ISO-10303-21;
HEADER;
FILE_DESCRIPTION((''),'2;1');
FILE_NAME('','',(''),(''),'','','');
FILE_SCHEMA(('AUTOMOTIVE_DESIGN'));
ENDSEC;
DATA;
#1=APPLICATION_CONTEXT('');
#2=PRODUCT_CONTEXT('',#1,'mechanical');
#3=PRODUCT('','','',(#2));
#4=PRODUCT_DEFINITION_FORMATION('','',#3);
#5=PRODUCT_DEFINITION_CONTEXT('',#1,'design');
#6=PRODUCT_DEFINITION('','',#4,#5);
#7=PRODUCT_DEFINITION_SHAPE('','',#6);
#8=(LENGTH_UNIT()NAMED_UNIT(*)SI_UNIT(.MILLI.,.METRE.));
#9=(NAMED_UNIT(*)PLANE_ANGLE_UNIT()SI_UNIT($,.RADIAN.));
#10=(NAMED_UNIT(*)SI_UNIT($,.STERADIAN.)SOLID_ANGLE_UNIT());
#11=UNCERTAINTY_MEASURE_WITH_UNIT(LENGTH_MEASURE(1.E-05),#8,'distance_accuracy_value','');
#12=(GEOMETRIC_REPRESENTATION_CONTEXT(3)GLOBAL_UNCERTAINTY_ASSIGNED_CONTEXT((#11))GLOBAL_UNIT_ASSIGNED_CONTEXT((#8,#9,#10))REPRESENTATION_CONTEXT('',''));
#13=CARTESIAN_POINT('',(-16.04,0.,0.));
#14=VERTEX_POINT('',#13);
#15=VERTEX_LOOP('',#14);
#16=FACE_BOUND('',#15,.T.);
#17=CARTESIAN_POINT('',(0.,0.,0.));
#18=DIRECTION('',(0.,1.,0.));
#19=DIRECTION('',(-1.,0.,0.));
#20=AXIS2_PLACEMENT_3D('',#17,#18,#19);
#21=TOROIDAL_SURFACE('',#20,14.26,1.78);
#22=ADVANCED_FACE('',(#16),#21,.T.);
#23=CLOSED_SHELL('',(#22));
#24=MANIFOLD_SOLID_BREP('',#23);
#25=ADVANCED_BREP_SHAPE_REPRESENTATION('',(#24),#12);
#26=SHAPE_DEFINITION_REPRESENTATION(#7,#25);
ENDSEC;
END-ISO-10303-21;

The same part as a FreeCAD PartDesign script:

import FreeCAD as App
import Part
import Sketcher

V = App.Vector
Q = App.Units.Quantity

doc = App.newDocument("Part")
params = doc.addObject("Spreadsheet::Sheet", "Params")
for row, (alias, value) in enumerate([
    ("sketch1_diameter", "3.56 mm"),
    ("revolution_angle", "360 deg"),
], start=1):
    params.set(f"A{row}", alias)
    params.set(f"B{row}", "=" + value)
    params.setAlias(f"B{row}", alias)

body = doc.addObject("PartDesign::Body", "Body")

# Sketch on XY plane
sketch1 = body.newObject("Sketcher::SketchObject", "Sketch")
sketch1.AttachmentSupport = (doc.getObject("XY_Plane"), [""])
sketch1.MapMode = "FlatFace"
sketch1.addGeometry(Part.Circle(V(14.26, 0, 0), V(0, 0, 1), 1.78), False)
sketch1.addConstraint([
    Sketcher.Constraint("PointOnObject", 0, 3, -1),
    Sketcher.Constraint("Diameter", 0, Q("3.56 mm")),
    Sketcher.Constraint("DistanceX", -1, 1, 0, 3, Q("14.26 mm")),
])
sketch1.setExpression("Constraints[1]", "Params.sketch1_diameter")
revolution = body.newObject("PartDesign::Revolution", "Revolution")
revolution.Profile = sketch1
revolution.ReferenceAxis = (sketch1, ["V_Axis"])
revolution.setExpression("Angle", "Params.revolution_angle")

doc.recompute()
